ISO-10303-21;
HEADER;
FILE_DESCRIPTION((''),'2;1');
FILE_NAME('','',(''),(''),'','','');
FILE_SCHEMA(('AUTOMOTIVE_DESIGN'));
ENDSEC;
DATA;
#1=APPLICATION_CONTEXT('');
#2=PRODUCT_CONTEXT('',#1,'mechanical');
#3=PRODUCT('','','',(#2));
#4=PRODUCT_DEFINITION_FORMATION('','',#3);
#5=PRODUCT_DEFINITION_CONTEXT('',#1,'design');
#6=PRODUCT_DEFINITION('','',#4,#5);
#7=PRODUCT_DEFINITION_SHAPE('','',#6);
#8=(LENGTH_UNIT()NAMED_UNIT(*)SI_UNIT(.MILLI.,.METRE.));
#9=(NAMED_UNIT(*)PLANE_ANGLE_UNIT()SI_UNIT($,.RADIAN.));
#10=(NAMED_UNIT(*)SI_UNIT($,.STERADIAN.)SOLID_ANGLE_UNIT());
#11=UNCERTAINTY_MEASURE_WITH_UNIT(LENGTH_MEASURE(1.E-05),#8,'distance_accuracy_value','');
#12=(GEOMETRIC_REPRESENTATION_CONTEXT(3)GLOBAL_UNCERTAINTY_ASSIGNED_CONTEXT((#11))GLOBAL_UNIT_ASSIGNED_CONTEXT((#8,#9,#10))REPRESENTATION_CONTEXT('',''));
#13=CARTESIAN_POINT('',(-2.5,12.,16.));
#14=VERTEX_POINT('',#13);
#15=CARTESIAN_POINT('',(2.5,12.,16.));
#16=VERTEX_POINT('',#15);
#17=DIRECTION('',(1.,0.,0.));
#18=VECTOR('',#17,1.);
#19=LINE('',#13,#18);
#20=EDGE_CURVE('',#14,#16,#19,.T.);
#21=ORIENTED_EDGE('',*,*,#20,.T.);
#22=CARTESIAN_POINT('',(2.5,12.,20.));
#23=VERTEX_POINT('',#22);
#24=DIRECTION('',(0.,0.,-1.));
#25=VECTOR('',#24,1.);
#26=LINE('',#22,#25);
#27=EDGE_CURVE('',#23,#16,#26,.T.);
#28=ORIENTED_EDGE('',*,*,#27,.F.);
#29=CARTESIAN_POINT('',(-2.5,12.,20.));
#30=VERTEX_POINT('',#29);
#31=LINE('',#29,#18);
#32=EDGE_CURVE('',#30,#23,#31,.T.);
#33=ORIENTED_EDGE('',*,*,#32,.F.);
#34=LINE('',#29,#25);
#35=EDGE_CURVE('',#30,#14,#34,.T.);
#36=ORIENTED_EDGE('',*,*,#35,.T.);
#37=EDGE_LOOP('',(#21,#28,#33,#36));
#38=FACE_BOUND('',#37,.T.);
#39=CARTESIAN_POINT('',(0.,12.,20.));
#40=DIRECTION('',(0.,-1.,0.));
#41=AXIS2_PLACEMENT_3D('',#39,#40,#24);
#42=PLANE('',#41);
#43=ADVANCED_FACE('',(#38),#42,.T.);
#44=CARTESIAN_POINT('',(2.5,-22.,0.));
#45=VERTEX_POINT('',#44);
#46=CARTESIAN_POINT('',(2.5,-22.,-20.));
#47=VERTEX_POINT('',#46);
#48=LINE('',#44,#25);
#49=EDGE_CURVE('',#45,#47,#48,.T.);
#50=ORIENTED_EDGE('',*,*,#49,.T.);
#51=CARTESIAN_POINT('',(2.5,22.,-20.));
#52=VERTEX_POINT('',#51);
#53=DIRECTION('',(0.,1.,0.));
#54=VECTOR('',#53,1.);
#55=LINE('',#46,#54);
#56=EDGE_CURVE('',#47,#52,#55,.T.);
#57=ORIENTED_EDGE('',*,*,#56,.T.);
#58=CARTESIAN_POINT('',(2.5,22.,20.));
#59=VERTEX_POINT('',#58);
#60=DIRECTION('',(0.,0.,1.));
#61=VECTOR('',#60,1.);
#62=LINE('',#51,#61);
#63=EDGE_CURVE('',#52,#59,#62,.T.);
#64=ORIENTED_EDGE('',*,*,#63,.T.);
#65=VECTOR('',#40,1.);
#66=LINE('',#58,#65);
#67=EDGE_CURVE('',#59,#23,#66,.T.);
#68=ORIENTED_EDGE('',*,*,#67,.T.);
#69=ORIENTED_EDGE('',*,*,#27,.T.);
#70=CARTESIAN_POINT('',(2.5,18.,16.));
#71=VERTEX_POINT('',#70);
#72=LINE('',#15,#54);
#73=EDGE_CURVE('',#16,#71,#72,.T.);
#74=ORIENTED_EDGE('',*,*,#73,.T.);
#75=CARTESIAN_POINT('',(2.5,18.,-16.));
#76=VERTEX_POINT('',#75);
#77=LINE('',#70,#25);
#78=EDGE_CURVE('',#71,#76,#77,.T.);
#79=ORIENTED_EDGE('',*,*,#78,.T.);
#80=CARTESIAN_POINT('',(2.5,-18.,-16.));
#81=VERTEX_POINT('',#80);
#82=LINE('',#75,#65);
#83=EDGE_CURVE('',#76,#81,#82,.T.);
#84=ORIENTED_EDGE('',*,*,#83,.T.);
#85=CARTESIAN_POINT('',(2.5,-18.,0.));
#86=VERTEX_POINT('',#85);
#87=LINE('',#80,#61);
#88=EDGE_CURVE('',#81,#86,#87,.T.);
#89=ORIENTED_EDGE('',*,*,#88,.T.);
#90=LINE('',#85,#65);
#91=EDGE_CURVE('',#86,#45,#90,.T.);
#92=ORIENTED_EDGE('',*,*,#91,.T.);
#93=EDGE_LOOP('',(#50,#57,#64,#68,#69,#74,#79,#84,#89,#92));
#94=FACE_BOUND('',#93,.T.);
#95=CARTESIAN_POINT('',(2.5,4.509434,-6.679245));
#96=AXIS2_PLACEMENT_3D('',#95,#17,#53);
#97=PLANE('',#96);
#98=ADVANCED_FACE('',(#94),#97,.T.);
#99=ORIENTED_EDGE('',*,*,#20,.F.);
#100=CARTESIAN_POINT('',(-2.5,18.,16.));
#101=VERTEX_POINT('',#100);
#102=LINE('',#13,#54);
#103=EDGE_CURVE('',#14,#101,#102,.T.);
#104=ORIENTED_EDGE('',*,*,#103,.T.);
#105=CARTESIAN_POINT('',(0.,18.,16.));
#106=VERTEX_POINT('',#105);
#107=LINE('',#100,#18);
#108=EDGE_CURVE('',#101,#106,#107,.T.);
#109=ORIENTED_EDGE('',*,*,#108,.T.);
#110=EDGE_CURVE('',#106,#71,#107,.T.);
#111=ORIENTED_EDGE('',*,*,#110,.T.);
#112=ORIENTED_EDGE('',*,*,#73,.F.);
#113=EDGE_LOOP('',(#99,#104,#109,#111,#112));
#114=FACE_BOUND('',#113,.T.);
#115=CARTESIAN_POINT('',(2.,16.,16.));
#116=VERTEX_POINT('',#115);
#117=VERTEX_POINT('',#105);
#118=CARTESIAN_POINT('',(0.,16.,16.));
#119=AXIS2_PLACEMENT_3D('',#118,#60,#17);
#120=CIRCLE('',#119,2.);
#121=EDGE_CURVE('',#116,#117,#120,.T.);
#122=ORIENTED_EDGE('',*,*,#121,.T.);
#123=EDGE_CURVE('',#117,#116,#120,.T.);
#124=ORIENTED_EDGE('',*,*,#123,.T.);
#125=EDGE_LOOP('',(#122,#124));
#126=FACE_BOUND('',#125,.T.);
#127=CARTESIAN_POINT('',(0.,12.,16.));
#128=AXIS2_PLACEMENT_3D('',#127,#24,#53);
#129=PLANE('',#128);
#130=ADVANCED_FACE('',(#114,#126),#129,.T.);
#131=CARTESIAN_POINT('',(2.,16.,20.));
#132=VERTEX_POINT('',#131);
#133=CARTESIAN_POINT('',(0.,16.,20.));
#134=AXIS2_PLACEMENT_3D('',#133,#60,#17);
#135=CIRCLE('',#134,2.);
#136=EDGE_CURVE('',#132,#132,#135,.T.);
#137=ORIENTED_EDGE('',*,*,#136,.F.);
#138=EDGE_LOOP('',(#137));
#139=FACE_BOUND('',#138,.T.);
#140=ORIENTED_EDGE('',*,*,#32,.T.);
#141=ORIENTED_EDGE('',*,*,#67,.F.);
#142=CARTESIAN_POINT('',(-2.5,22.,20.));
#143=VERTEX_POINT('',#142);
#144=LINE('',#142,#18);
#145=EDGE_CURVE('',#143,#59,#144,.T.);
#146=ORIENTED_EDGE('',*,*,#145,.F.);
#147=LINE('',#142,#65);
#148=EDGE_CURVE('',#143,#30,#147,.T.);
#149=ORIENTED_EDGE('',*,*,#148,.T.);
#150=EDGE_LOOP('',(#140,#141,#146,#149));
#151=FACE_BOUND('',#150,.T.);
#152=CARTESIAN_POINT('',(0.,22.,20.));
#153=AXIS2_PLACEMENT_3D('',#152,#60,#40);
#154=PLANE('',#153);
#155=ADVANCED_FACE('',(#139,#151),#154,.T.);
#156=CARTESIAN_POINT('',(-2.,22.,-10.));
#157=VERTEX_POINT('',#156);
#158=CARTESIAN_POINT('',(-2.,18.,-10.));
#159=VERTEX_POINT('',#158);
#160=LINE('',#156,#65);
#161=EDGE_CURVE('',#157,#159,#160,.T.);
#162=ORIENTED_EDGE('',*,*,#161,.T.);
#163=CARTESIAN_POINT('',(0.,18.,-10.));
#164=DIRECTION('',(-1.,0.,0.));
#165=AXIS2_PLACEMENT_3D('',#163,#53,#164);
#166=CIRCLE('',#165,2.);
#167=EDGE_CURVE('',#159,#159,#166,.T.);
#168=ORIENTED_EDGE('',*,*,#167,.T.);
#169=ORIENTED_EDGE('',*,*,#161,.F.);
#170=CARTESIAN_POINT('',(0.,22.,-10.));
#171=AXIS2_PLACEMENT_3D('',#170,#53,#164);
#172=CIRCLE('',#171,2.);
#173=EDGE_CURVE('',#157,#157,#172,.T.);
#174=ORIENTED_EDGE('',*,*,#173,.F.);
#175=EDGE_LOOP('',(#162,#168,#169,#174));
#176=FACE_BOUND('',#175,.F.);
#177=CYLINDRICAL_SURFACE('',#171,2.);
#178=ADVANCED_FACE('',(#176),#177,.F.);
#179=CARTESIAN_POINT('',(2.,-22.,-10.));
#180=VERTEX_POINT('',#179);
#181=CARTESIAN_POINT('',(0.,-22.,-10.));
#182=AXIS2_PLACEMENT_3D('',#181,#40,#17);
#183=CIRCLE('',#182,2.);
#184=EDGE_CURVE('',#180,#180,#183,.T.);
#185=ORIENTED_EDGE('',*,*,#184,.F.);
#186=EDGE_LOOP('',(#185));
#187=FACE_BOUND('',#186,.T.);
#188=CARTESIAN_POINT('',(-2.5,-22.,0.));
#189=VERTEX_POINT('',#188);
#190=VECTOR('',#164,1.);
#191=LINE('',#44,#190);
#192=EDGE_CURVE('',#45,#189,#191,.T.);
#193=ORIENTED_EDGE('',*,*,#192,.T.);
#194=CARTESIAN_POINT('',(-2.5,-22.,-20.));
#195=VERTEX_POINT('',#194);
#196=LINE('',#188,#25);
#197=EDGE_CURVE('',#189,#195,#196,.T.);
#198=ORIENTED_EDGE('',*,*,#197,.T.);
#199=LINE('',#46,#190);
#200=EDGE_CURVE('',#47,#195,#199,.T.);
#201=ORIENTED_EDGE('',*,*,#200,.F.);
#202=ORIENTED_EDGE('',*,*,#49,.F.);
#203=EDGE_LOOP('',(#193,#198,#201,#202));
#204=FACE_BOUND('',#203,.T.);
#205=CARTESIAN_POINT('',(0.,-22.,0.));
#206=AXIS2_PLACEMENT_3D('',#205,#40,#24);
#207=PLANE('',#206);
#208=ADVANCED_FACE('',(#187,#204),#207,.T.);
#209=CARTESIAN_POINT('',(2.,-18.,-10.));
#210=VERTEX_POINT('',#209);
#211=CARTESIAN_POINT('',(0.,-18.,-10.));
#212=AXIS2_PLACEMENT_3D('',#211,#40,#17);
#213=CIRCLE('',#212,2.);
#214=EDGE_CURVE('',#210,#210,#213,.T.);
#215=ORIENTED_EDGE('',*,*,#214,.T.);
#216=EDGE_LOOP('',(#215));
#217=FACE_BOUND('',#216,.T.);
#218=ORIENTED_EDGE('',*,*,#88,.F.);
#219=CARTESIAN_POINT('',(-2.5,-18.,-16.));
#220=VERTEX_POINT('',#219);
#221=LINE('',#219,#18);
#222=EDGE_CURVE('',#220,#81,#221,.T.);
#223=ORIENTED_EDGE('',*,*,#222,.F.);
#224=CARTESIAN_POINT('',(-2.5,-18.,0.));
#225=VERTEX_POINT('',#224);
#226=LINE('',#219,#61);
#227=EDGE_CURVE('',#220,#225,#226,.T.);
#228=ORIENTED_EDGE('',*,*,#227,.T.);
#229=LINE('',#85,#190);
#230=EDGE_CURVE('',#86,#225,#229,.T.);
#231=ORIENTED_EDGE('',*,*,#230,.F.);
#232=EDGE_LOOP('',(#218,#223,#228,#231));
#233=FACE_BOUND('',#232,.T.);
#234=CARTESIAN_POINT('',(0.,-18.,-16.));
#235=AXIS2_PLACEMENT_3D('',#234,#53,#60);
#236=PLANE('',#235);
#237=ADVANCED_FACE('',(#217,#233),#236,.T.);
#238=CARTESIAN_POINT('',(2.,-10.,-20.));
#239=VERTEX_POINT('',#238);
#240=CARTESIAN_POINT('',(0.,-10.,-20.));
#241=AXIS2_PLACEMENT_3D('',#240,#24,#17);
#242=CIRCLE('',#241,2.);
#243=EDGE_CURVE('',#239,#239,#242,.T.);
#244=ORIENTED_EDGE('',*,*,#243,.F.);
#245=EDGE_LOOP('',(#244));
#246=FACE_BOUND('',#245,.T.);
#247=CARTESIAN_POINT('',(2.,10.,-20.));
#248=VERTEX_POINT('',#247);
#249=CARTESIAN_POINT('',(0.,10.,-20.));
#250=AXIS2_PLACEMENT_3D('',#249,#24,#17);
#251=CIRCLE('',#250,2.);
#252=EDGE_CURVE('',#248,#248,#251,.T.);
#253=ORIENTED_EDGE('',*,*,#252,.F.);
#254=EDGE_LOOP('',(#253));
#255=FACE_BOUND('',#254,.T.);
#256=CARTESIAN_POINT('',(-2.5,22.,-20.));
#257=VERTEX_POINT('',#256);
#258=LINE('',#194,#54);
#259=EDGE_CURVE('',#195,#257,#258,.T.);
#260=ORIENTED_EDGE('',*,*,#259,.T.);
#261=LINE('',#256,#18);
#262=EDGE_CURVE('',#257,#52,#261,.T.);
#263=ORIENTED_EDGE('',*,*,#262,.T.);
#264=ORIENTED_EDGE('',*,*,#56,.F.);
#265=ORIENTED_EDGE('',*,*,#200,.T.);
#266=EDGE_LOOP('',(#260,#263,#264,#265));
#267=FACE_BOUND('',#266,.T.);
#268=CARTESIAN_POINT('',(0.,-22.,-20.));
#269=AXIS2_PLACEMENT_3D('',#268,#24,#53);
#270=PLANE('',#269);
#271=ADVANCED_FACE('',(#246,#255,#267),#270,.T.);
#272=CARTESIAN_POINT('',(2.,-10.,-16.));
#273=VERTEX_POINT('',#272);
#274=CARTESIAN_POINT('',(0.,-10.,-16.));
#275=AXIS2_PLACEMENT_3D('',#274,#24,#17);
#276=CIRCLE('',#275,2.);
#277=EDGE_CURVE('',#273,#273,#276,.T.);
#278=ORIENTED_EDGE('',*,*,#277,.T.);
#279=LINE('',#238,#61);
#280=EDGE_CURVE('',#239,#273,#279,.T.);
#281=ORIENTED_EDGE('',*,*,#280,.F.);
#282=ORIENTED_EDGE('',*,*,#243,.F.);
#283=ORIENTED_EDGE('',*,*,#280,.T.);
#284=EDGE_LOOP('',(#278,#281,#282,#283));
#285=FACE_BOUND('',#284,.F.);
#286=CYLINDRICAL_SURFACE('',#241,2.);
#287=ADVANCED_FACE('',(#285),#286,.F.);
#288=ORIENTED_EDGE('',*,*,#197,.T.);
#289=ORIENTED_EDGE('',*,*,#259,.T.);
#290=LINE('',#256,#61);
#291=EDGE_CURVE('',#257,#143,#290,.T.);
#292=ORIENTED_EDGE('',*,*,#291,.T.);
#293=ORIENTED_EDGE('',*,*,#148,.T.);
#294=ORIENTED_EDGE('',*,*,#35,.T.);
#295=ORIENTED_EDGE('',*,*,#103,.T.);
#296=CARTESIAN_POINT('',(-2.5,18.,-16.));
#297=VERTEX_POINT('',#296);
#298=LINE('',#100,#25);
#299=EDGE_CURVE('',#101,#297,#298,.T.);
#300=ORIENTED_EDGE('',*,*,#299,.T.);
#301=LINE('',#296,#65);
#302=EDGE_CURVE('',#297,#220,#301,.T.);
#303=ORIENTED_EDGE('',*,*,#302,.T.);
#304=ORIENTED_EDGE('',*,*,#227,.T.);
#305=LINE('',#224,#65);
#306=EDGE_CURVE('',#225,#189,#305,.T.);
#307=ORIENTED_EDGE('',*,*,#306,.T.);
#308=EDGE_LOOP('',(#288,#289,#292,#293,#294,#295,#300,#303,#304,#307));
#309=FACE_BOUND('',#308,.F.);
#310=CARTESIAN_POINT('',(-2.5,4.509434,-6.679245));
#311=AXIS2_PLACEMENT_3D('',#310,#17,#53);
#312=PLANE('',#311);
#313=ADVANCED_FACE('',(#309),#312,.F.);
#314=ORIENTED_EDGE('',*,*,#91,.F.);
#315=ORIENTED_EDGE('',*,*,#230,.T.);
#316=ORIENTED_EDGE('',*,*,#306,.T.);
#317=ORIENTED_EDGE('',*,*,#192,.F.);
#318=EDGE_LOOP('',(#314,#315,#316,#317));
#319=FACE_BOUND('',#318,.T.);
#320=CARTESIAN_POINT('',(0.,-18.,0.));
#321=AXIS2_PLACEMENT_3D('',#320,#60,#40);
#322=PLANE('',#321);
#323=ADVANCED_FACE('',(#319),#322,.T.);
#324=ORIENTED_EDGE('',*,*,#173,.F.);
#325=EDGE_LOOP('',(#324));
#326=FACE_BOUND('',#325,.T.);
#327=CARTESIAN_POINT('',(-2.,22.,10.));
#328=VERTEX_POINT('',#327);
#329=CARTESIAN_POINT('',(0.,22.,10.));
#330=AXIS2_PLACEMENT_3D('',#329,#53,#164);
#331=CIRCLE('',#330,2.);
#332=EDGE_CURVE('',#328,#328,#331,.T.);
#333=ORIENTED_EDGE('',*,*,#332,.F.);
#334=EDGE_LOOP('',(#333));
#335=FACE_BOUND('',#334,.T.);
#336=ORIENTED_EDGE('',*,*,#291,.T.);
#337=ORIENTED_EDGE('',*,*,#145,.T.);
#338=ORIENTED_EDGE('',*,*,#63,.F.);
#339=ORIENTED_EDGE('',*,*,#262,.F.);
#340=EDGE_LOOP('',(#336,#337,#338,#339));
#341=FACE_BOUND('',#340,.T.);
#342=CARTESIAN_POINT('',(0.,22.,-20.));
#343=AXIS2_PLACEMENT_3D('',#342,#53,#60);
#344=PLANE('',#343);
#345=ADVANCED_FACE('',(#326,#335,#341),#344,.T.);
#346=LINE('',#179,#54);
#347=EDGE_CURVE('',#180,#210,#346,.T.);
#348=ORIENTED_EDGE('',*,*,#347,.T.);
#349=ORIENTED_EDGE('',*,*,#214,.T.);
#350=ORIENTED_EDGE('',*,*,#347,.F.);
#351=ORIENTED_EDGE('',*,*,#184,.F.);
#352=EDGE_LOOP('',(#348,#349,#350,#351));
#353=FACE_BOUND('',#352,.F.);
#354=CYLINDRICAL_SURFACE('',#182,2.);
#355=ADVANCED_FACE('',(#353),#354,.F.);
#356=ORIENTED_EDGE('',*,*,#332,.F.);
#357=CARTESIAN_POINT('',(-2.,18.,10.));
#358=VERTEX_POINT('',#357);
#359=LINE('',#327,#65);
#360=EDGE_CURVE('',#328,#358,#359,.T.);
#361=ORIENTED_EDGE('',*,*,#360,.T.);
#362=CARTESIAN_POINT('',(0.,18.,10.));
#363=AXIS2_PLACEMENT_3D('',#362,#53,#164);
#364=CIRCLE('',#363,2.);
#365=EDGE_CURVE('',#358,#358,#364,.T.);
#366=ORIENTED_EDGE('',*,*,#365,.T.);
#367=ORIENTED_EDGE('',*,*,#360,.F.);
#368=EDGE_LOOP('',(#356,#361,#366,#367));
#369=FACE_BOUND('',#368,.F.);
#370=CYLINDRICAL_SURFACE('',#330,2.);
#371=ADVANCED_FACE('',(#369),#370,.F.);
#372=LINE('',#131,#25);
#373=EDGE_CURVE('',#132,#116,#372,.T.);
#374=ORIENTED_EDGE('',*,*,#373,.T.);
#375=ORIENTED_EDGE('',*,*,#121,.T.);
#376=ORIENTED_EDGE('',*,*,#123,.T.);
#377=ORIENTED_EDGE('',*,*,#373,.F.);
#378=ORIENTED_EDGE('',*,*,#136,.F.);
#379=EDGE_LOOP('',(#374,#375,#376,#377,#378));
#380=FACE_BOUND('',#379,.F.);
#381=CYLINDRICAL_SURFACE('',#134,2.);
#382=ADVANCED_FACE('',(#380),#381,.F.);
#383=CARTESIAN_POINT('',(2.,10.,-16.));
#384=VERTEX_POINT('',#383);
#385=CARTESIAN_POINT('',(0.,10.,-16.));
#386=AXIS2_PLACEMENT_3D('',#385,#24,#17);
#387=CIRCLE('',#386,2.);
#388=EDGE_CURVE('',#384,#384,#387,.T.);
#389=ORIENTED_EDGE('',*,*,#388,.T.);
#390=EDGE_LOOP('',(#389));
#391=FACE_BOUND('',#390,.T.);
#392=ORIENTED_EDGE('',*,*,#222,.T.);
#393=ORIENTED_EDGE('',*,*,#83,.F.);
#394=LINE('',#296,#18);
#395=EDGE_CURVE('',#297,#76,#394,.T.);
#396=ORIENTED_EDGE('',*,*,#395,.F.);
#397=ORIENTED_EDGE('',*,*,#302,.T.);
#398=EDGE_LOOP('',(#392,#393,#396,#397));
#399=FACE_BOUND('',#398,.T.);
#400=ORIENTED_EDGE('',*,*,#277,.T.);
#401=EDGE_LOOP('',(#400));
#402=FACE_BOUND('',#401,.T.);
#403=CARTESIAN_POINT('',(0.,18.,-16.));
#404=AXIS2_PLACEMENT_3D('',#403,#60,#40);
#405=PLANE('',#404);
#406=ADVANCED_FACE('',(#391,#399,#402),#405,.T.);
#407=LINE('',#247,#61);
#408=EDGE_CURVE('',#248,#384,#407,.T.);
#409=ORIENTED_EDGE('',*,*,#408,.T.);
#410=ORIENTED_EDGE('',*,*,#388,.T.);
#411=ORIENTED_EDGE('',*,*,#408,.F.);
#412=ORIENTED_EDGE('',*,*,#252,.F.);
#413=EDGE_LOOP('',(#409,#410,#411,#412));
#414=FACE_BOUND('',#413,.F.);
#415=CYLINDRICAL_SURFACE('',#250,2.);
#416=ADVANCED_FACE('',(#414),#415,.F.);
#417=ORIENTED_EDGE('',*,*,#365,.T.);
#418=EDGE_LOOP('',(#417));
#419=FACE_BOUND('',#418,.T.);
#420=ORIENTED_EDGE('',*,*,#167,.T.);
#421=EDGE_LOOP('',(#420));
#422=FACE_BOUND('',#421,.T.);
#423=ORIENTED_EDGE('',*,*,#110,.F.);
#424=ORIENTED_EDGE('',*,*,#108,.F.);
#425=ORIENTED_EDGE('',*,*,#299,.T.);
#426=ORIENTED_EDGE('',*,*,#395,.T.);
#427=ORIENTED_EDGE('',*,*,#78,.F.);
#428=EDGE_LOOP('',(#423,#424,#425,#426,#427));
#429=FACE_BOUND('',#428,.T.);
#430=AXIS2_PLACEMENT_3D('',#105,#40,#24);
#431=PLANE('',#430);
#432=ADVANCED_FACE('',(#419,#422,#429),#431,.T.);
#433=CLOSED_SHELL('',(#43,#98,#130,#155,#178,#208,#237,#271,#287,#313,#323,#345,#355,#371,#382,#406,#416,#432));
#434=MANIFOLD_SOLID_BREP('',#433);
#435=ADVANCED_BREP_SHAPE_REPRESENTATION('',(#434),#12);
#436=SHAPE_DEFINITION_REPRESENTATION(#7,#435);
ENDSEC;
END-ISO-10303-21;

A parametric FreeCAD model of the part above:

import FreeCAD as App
import Part
import Sketcher


def add_polygon(sketch, points):
    """Adds a closed chain of lines whose ends are joined by coincident constraints."""
    first, n = sketch.GeometryCount, len(points)
    for a, b in zip(points, points[1:] + points[:1]):
        sketch.addGeometry(Part.LineSegment(App.Vector(*a, 0), App.Vector(*b, 0)), False)
    for i in range(n):
        sketch.addConstraint(Sketcher.Constraint("Coincident", first + i, 2, first + (i + 1) % n, 1))

doc = App.newDocument("Part")
params = doc.addObject("Spreadsheet::Sheet", "Params")
for row, (alias, value) in enumerate([
    ("sketch1_width", "44 mm"),
    ("sketch1_width2", "10 mm"),
    ("sketch1_width3", "6 mm"),
    ("sketch1_height", "40 mm"),
    ("pad1_length", "5 mm"),
    ("sketch2_diameter", "4 mm"),
    ("pocket1_length", "5 mm"),
    ("sketch3_diameter", "4 mm"),
    ("pocket2_length", "5 mm"),
    ("sketch4_diameter", "4 mm"),
    ("pocket3_length", "25 mm"),
    ("sketch5_diameter", "4 mm"),
    ("pocket4_length", "5 mm"),
], start=1):
    params.set(f"A{row}", alias)
    params.set(f"B{row}", "=" + value)
    params.setAlias(f"B{row}", alias)

body = doc.addObject("PartDesign::Body", "Body")

sketch1 = body.newObject("Sketcher::SketchObject", "Sketch")
sketch1.AttachmentSupport = (doc.getObject("YZ_Plane"), [""])
sketch1.MapMode = "FlatFace"
add_polygon(sketch1, [(-22, -20), (22, -20), (22, 20), (12, 20), (12, 16), (18, 16), (18, -16), (-18, -16), (-18, 0), (-22, 0)])
sketch1.addConstraint([
    Sketcher.Constraint("Horizontal", 0),
    Sketcher.Constraint("Vertical", 1),
    Sketcher.Constraint("Horizontal", 2),
    Sketcher.Constraint("Vertical", 3),
    Sketcher.Constraint("Horizontal", 4),
    Sketcher.Constraint("Vertical", 5),
    Sketcher.Constraint("Horizontal", 6),
    Sketcher.Constraint("Vertical", 7),
    Sketcher.Constraint("Horizontal", 8),
    Sketcher.Constraint("Vertical", 9),
    Sketcher.Constraint("Symmetric", 4, 2, 6, 2, -1, 1),
    Sketcher.Constraint("Symmetric", 1, 2, 9, 2, -1, 1),
    Sketcher.Constraint("PointOnObject", 7, 2, -1),
    Sketcher.Constraint("Equal", 8, 3),
    Sketcher.Constraint("DistanceX", 0, 1, 0, 2, 44.0),
    Sketcher.Constraint("DistanceX", 2, 2, 2, 1, 10.0),
    Sketcher.Constraint("DistanceX", 4, 1, 4, 2, 6.0),
    Sketcher.Constraint("DistanceY", 1, 1, 1, 2, 40.0),
])
sketch1.setExpression("Constraints[24]", "Params.sketch1_width")
sketch1.setExpression("Constraints[25]", "Params.sketch1_width2")
sketch1.setExpression("Constraints[26]", "Params.sketch1_width3")
sketch1.setExpression("Constraints[27]", "Params.sketch1_height")
pad1 = body.newObject("PartDesign::Pad", "Pad")
pad1.Profile = sketch1
pad1.setExpression("Length", "Params.pad1_length")
pad1.Midplane = True

sketch2 = body.newObject("Sketcher::SketchObject", "Sketch001")
sketch2.AttachmentSupport = (doc.getObject("XY_Plane"), [""])
sketch2.MapMode = "FlatFace"
sketch2.AttachmentOffset = App.Placement(App.Vector(0, 0, 20), App.Rotation())
sketch2.addGeometry(Part.Circle(App.Vector(0, 16, 0), App.Vector(0, 0, 1), 2), False)
sketch2.addConstraint([
    Sketcher.Constraint("PointOnObject", 0, 3, -2),
    Sketcher.Constraint("Diameter", 0, 4.0),
    Sketcher.Constraint("DistanceY", -1, 1, 0, 3, 16.0),
])
sketch2.setExpression("Constraints[1]", "Params.sketch2_diameter")
pocket1 = body.newObject("PartDesign::Pocket", "Pocket")
pocket1.Profile = sketch2
pocket1.setExpression("Length", "Params.pocket1_length")

sketch3 = body.newObject("Sketcher::SketchObject", "Sketch002")
sketch3.AttachmentSupport = (doc.getObject("XY_Plane"), [""])
sketch3.MapMode = "FlatFace"
sketch3.AttachmentOffset = App.Placement(App.Vector(0, 0, -20), App.Rotation())
sketch3.addGeometry([
    Part.Circle(App.Vector(0, -10, 0), App.Vector(0, 0, 1), 2),
    Part.Circle(App.Vector(0, 10, 0), App.Vector(0, 0, 1), 2),
], False)
sketch3.addConstraint([
    Sketcher.Constraint("Equal", 0, 1),
    Sketcher.Constraint("Symmetric", 0, 3, 1, 3, -1, 1),
    Sketcher.Constraint("PointOnObject", 0, 3, -2),
    Sketcher.Constraint("Diameter", 0, 4.0),
    Sketcher.Constraint("DistanceY", 0, 3, -1, 1, 10.0),
])
sketch3.setExpression("Constraints[3]", "Params.sketch3_diameter")
pocket2 = body.newObject("PartDesign::Pocket", "Pocket001")
pocket2.Profile = sketch3
pocket2.setExpression("Length", "Params.pocket2_length")
pocket2.Reversed = True

sketch4 = body.newObject("Sketcher::SketchObject", "Sketch003")
sketch4.AttachmentSupport = (doc.getObject("XZ_Plane"), [""])
sketch4.MapMode = "FlatFace"
sketch4.AttachmentOffset = App.Placement(App.Vector(0, 0, 22), App.Rotation())
sketch4.addGeometry(Part.Circle(App.Vector(0, -10, 0), App.Vector(0, 0, 1), 2), False)
sketch4.addConstraint([
    Sketcher.Constraint("PointOnObject", 0, 3, -2),
    Sketcher.Constraint("Diameter", 0, 4.0),
    Sketcher.Constraint("DistanceY", 0, 3, -1, 1, 10.0),
])
sketch4.setExpression("Constraints[1]", "Params.sketch4_diameter")
pocket3 = body.newObject("PartDesign::Pocket", "Pocket002")
pocket3.Profile = sketch4
pocket3.setExpression("Length", "Params.pocket3_length")

sketch5 = body.newObject("Sketcher::SketchObject", "Sketch004")
sketch5.AttachmentSupport = (doc.getObject("XZ_Plane"), [""])
sketch5.MapMode = "FlatFace"
sketch5.AttachmentOffset = App.Placement(App.Vector(0, 0, -22), App.Rotation())
sketch5.addGeometry([
    Part.Circle(App.Vector(0, -10, 0), App.Vector(0, 0, 1), 2),
    Part.Circle(App.Vector(0, 10, 0), App.Vector(0, 0, 1), 2),
], False)
sketch5.addConstraint([
    Sketcher.Constraint("Equal", 0, 1),
    Sketcher.Constraint("Symmetric", 0, 3, 1, 3, -1, 1),
    Sketcher.Constraint("PointOnObject", 0, 3, -2),
    Sketcher.Constraint("Diameter", 0, 4.0),
    Sketcher.Constraint("DistanceY", 0, 3, -1, 1, 10.0),
])
sketch5.setExpression("Constraints[3]", "Params.sketch5_diameter")
pocket4 = body.newObject("PartDesign::Pocket", "Pocket003")
pocket4.Profile = sketch5
pocket4.setExpression("Length", "Params.pocket4_length")
pocket4.Reversed = True

doc.recompute()
